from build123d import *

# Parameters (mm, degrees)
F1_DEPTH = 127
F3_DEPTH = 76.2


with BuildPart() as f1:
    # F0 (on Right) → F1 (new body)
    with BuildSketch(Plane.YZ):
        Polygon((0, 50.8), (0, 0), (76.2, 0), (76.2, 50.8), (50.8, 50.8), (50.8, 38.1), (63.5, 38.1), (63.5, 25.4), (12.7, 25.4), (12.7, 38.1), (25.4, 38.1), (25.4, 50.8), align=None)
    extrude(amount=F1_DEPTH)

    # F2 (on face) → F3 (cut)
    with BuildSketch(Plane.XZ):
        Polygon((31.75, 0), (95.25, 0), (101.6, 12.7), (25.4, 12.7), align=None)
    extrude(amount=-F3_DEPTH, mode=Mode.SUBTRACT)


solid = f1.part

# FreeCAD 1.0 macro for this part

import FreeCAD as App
import Part
import Sketcher

V = App.Vector
Q = App.Units.Quantity


def add_polygon(sketch, points):
    """Adds a closed chain of lines whose ends are joined by coincident constraints."""
    first, n = sketch.GeometryCount, len(points)
    for a, b in zip(points, points[1:] + points[:1]):
        sketch.addGeometry(Part.LineSegment(App.Vector(*a, 0), App.Vector(*b, 0)), False)
    for i in range(n):
        sketch.addConstraint(Sketcher.Constraint("Coincident", first + i, 2, first + (i + 1) % n, 1))

doc = App.newDocument("Part")
body = doc.addObject("PartDesign::Body", "Body")

# Sketch on YZ plane
sketch1 = body.newObject("Sketcher::SketchObject", "Sketch")
sketch1.AttachmentSupport = (doc.getObject("YZ_Plane"), [""])
sketch1.MapMode = "FlatFace"
add_polygon(sketch1, [(0, 51), (0, 0), (76, 0), (76, 51), (51, 51), (51, 38), (64, 38), (64, 25), (13, 25), (13, 38), (25, 38), (25, 51)])  # lines 0-11
sketch1.addConstraint(Sketcher.Constraint("Vertical", 0))
sketch1.addConstraint(Sketcher.Constraint("Horizontal", 1))
sketch1.addConstraint(Sketcher.Constraint("Vertical", 2))
sketch1.addConstraint(Sketcher.Constraint("Horizontal", 3))
sketch1.addConstraint(Sketcher.Constraint("Vertical", 4))
sketch1.addConstraint(Sketcher.Constraint("Horizontal", 5))
sketch1.addConstraint(Sketcher.Constraint("Vertical", 6))
sketch1.addConstraint(Sketcher.Constraint("Horizontal", 7))
sketch1.addConstraint(Sketcher.Constraint("Vertical", 8))
sketch1.addConstraint(Sketcher.Constraint("Horizontal", 9))
sketch1.addConstraint(Sketcher.Constraint("Vertical", 10))
sketch1.addConstraint(Sketcher.Constraint("Horizontal", 11))
sketch1.addConstraint(Sketcher.Constraint("Coincident", 0, 2, -1, 1))
sketch1.addConstraint(Sketcher.Constraint("Horizontal", 5, 2, 8, 2))
sketch1.addConstraint(Sketcher.Constraint("Horizontal", 3, 2, 10, 2))
sketch1.addConstraint(Sketcher.Constraint("Equal", 5, 9))
sketch1.addConstraint(Sketcher.Constraint("Equal", 3, 11))
sketch1.addConstraint(Sketcher.Constraint("Equal", 7, 0))
sketch1.addConstraint(Sketcher.Constraint("Equal", 9, 4))
sketch1.addConstraint(Sketcher.Constraint("Equal", 4, 6))
sketch1.addConstraint(Sketcher.Constraint("DistanceX", 1, 1, 1, 2, Q("3 in")))
sketch1.addConstraint(Sketcher.Constraint("DistanceX", 3, 2, 3, 1, Q("1 in")))
sketch1.addConstraint(Sketcher.Constraint("DistanceX", 7, 2, 7, 1, Q("2 in")))
pad1 = body.newObject("PartDesign::Pad", "Pad")
pad1.Profile = sketch1
pad1.Length = Q("5 in")

# Sketch on XZ plane
sketch2 = body.newObject("Sketcher::SketchObject", "Sketch001")
sketch2.AttachmentSupport = (doc.getObject("XZ_Plane"), [""])
sketch2.MapMode = "FlatFace"
add_polygon(sketch2, [(32, 0), (95, 0), (102, 13), (25, 13)])  # lines 0-3
sketch2.addConstraint(Sketcher.Constraint("Horizontal", 0))
sketch2.addConstraint(Sketcher.Constraint("Horizontal", 2))
sketch2.addConstraint(Sketcher.Constraint("PointOnObject", 0, 2, -1))
sketch2.addConstraint(Sketcher.Constraint("Equal", 1, 3))
sketch2.addConstraint(Sketcher.Constraint("DistanceX", 2, 2, 2, 1, Q("3 in")))
sketch2.addConstraint(Sketcher.Constraint("DistanceX", 0, 1, 0, 2, Q("2.5 in")))
sketch2.addConstraint(Sketcher.Constraint("DistanceX", -1, 1, 1, 2, Q("4 in")))
sketch2.addConstraint(Sketcher.Constraint("DistanceY", -1, 1, 1, 2, Q("0.5 in")))
pocket1 = body.newObject("PartDesign::Pocket", "Pocket")
pocket1.Profile = sketch2
pocket1.Length = Q("3 in")

doc.recompute()
